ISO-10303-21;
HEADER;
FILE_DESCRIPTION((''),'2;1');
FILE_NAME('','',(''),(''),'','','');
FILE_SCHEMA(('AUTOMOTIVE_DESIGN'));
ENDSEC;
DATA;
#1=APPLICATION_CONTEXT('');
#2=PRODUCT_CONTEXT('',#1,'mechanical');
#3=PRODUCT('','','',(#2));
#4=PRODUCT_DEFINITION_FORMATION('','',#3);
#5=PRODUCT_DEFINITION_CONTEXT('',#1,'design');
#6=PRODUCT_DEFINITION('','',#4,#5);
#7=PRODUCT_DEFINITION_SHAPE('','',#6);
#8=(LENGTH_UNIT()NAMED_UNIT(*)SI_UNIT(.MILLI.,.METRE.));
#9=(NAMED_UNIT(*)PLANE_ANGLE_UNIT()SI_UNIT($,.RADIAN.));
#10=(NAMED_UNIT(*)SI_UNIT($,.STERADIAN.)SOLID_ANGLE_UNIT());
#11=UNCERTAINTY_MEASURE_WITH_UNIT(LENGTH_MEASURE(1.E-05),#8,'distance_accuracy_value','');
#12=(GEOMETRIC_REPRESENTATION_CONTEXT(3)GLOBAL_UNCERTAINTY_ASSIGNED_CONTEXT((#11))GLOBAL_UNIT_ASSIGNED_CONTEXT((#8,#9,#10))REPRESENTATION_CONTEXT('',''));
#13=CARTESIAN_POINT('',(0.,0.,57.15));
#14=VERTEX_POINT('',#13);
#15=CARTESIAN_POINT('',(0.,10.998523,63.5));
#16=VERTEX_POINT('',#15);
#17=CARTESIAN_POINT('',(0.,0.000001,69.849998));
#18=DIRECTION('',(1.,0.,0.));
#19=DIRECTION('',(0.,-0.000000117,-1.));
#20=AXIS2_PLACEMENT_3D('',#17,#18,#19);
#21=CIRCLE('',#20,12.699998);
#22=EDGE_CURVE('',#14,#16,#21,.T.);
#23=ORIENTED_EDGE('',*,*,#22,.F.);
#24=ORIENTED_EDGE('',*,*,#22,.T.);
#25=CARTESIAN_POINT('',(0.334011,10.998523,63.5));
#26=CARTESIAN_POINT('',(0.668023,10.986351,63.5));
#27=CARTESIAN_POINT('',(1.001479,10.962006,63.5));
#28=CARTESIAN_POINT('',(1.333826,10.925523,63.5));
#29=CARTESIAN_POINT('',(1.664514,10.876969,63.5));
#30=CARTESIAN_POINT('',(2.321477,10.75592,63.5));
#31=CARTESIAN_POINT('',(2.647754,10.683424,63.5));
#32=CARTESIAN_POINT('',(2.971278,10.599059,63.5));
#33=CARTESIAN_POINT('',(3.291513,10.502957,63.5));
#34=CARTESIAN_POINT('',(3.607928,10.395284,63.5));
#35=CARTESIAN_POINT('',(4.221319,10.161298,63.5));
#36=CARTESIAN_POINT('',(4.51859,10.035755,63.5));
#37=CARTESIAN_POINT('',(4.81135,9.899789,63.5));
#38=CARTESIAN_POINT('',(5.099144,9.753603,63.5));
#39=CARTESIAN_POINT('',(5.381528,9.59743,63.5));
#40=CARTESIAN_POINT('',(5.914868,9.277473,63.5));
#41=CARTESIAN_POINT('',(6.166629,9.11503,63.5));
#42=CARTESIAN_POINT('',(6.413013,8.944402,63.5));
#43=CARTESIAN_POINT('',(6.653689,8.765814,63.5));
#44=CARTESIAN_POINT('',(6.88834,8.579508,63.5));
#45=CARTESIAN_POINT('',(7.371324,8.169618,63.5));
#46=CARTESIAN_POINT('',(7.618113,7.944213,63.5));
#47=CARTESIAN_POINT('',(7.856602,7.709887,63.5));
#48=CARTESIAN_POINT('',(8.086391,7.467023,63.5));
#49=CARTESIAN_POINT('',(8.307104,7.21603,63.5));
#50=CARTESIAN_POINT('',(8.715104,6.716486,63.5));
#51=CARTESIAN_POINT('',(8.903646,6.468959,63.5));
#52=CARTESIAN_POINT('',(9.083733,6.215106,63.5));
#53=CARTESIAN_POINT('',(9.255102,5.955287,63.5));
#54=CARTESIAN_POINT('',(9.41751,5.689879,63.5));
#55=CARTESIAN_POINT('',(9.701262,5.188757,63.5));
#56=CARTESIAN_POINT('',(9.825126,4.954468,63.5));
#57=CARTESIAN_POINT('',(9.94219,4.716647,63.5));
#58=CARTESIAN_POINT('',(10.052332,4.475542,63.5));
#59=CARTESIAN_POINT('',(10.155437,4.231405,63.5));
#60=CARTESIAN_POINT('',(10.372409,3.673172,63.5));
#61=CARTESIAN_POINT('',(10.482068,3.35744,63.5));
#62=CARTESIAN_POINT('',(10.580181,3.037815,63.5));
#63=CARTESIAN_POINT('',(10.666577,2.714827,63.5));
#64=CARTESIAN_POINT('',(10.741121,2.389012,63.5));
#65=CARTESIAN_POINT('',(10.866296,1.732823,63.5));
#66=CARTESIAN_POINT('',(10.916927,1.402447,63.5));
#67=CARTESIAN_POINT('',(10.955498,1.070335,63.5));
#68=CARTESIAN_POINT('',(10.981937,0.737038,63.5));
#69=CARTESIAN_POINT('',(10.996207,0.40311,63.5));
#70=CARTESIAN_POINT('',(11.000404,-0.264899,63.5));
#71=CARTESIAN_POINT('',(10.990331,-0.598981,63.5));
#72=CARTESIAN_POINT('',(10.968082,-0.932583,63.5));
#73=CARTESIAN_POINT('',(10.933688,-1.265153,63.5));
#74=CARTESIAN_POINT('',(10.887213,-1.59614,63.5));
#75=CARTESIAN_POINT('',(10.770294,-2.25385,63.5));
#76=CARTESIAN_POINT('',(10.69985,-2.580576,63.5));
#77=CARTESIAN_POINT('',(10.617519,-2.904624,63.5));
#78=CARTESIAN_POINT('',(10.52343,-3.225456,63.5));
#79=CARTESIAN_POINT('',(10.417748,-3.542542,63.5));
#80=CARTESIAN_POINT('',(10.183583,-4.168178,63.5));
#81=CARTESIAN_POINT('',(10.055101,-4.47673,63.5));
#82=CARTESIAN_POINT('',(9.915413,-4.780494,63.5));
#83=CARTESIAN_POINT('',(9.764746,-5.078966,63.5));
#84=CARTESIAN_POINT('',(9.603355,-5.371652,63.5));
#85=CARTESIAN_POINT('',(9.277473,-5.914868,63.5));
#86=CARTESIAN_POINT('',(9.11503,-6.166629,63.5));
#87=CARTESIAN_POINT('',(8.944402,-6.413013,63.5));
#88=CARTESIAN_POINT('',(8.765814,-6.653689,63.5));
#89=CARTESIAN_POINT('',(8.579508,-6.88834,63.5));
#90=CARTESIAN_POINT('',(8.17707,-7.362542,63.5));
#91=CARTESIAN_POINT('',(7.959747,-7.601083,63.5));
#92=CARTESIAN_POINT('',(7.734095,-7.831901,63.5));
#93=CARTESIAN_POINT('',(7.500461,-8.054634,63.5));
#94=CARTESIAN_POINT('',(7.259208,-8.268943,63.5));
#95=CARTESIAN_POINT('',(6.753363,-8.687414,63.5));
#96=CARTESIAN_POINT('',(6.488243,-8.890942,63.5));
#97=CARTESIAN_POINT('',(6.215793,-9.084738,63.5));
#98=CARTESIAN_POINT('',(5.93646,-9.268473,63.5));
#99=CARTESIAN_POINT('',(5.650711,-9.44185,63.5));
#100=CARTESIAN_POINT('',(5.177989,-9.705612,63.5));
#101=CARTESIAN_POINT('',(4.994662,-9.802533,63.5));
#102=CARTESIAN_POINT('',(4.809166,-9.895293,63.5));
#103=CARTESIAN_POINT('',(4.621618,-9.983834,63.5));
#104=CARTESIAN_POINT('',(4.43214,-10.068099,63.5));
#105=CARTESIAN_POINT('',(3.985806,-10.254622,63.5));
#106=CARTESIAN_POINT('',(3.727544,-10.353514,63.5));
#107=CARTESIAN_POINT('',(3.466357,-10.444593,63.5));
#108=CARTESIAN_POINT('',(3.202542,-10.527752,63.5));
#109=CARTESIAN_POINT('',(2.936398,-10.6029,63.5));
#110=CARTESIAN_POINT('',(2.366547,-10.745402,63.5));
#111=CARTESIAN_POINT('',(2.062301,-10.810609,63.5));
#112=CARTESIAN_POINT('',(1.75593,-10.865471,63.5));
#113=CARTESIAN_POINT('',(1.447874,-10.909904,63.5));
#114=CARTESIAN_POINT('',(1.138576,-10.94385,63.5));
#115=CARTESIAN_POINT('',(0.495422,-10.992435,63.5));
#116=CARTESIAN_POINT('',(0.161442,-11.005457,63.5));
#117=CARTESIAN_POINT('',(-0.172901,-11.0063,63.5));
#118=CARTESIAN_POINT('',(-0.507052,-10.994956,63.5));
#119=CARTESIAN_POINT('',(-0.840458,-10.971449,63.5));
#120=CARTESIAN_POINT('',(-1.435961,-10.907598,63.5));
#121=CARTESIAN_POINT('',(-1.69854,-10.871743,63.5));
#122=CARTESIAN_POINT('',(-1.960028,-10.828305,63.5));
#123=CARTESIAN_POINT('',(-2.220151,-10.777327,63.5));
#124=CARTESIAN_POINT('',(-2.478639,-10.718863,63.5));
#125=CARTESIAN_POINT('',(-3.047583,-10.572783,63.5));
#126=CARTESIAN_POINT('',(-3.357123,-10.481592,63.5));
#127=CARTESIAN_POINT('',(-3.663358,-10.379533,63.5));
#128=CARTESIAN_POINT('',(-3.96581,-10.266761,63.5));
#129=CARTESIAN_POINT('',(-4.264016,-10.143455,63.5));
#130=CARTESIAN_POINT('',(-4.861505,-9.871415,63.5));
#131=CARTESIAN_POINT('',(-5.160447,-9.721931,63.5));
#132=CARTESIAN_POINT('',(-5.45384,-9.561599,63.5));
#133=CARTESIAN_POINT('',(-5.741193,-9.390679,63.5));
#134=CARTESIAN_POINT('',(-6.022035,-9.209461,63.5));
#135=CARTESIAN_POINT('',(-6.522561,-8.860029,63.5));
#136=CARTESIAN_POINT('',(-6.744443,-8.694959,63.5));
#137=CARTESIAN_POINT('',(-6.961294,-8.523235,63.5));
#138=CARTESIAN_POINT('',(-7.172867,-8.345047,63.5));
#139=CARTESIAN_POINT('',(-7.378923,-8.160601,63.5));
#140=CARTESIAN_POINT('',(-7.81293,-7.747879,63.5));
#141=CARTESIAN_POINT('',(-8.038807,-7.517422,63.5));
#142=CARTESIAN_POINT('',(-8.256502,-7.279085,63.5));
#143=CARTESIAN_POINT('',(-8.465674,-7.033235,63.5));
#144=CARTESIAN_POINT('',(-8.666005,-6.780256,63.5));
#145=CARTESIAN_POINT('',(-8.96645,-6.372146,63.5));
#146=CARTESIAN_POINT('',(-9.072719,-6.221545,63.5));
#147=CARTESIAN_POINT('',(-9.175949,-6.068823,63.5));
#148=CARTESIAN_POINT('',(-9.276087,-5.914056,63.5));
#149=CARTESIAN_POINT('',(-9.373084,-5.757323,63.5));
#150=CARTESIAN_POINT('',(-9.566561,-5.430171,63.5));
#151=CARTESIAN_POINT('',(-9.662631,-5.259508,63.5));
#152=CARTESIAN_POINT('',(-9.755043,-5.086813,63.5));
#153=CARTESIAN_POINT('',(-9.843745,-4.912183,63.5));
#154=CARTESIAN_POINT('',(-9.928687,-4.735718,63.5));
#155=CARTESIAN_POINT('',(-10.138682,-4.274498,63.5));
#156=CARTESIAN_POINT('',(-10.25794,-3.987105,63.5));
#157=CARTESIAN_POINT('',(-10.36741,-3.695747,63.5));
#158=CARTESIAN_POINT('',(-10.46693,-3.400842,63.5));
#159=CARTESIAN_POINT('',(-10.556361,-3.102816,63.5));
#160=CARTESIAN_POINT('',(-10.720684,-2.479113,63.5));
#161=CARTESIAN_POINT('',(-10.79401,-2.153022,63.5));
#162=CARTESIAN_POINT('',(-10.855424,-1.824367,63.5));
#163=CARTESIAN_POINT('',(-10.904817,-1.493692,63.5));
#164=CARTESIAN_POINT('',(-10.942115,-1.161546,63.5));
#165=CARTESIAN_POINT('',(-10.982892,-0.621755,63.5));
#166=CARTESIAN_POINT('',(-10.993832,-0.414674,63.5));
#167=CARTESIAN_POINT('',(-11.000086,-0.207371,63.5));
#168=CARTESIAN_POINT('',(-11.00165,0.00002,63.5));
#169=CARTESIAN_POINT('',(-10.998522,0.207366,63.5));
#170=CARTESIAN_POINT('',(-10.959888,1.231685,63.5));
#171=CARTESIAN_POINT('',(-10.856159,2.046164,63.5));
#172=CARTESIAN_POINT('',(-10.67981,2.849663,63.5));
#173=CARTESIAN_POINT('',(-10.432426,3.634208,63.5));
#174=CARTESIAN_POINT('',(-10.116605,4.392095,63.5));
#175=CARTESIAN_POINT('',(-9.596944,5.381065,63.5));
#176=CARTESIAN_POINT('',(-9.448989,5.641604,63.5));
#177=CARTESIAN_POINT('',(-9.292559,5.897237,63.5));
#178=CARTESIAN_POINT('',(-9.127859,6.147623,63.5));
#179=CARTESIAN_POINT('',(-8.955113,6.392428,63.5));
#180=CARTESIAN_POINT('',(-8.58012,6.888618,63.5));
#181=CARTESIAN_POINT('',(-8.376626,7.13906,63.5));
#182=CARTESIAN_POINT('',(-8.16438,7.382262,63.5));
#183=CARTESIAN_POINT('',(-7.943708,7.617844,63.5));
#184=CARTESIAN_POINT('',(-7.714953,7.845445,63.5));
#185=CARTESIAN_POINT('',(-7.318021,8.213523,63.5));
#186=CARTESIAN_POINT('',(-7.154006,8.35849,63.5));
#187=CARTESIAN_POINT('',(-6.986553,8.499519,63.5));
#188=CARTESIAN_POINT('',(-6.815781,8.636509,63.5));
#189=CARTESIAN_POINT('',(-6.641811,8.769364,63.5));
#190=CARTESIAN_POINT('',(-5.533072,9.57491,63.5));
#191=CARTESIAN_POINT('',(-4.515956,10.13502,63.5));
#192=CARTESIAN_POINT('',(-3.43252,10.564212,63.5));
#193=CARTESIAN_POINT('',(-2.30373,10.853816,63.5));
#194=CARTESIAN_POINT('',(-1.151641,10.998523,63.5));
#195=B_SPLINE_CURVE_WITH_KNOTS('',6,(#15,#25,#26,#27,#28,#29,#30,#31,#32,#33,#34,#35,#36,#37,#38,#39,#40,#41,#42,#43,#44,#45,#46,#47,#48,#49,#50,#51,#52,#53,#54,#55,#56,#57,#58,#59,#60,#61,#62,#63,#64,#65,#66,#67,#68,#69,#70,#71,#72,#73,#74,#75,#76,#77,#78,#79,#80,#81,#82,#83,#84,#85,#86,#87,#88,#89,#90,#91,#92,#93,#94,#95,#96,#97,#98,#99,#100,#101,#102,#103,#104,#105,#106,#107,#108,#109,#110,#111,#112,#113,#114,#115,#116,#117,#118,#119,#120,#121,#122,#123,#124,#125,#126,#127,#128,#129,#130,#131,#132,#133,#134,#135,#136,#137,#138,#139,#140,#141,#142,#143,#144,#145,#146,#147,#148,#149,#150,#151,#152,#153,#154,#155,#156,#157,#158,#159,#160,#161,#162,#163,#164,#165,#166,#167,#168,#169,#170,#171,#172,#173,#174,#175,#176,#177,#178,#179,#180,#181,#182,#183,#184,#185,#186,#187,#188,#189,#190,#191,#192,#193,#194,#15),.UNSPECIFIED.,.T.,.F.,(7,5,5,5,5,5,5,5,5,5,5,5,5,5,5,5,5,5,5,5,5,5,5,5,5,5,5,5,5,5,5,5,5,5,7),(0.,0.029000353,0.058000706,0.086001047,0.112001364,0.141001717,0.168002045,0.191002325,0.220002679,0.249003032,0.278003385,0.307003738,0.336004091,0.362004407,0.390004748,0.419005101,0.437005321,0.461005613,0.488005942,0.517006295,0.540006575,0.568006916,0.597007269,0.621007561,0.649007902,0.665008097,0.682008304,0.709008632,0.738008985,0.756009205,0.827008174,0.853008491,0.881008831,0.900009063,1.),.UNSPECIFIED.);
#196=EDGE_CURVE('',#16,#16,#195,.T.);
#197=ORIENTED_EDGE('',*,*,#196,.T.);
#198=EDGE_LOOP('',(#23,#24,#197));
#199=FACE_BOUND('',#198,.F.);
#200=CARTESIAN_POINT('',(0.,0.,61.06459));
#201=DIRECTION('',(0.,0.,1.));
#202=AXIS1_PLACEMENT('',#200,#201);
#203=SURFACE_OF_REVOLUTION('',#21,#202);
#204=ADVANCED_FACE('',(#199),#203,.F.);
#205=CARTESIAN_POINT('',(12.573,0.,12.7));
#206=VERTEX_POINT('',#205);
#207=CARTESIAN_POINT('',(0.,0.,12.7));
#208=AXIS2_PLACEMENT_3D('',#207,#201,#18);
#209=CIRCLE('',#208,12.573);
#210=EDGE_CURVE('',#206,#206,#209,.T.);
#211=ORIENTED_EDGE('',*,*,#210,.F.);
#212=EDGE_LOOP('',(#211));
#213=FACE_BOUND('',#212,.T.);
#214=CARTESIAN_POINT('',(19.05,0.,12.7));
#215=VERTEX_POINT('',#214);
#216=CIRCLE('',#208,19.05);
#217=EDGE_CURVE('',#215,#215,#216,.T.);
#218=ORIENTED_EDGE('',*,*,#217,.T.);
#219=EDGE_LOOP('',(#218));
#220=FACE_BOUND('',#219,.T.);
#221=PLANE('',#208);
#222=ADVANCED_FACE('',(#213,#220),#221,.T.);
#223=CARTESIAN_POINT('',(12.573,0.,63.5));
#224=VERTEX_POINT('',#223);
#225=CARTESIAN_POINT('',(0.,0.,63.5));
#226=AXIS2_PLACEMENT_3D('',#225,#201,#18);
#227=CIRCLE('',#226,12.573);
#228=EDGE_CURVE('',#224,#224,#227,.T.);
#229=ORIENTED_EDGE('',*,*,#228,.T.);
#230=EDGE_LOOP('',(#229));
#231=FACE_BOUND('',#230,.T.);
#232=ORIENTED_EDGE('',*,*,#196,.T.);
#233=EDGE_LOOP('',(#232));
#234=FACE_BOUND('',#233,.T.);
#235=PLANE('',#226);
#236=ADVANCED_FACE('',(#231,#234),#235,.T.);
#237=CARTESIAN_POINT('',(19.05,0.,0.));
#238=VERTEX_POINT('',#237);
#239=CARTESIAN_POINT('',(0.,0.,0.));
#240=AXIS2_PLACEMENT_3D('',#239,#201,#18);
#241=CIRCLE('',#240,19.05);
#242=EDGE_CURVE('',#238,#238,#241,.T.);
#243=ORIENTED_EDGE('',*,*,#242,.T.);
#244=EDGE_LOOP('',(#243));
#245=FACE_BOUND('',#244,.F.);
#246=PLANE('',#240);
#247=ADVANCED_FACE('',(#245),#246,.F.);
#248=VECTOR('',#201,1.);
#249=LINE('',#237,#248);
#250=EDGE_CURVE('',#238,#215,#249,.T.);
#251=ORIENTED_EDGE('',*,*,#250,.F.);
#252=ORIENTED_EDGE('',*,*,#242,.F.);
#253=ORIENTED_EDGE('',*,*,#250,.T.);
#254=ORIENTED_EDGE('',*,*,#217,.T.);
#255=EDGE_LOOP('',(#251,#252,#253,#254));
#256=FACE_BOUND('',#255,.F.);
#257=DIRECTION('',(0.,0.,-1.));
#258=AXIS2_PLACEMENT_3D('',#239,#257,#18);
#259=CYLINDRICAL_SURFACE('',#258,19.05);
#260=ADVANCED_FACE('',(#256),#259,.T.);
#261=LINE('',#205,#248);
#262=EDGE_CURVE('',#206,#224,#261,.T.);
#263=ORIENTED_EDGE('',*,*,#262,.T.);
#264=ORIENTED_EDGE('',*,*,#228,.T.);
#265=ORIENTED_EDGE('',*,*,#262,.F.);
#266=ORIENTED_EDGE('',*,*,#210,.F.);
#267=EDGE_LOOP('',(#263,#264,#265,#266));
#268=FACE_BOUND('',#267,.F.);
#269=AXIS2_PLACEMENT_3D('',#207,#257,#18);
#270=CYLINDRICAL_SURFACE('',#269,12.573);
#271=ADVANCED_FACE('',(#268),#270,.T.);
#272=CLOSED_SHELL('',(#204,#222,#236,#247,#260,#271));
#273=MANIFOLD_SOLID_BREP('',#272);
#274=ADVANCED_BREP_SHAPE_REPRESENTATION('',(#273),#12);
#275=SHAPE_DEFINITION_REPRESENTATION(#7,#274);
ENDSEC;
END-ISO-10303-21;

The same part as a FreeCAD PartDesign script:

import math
import FreeCAD as App
import Part
import Sketcher
Q = App.Units.Quantity

doc = App.newDocument("Part")
body = doc.addObject("PartDesign::Body", "Body")

# Sketch on XY plane
sketch1 = body.newObject("Sketcher::SketchObject", "Sketch")
sketch1.AttachmentSupport = (doc.getObject("XY_Plane"), [""])
sketch1.MapMode = "FlatFace"
sketch1.addGeometry(Part.Circle(App.Vector(0, 0, 0), App.Vector(0, 0, 1), 19.05), False)
sketch1.addConstraint([
    Sketcher.Constraint("Coincident", 0, 3, -1, 1),
    Sketcher.Constraint("Diameter", 0, Q("1.5 in")),
])
pad1 = body.newObject("PartDesign::Pad", "Pad")
pad1.Profile = sketch1
pad1.Length = Q("0.5 in")

# Sketch on XY plane
sketch2 = body.newObject("Sketcher::SketchObject", "Sketch001")
sketch2.AttachmentSupport = (doc.getObject("XY_Plane"), [""])
sketch2.MapMode = "FlatFace"
sketch2.AttachmentOffset = App.Placement(App.Vector(0, 0, 0.5 * 25.4), App.Rotation())
sketch2.addGeometry(Part.Circle(App.Vector(0, 0, 0), App.Vector(0, 0, 1), 12.573), False)
sketch2.addConstraint([
    Sketcher.Constraint("Coincident", 0, 3, -1, 1),
    Sketcher.Constraint("Diameter", 0, Q("0.99 in")),
])
pad2 = body.newObject("PartDesign::Pad", "Pad001")
pad2.Profile = sketch2
pad2.Length = Q("2 in")

# Sketch on YZ plane
sketch3 = body.newObject("Sketcher::SketchObject", "Sketch002")
sketch3.AttachmentSupport = (doc.getObject("YZ_Plane"), [""])
sketch3.MapMode = "FlatFace"
sketch3.addGeometry([
    Part.LineSegment(App.Vector(0, 64.979181, 0), App.Vector(0, 57.15, 0)),
    Part.ArcOfCircle(Part.Circle(App.Vector(0.000001, 69.849998, 0), App.Vector(0, 0, 1), 12.699998), math.radians(-90.000007), math.radians(-22.552446)),
    Part.LineSegment(App.Vector(11.728816, 64.979181, 0), App.Vector(0, 64.979181, 0)),
], False)
sketch3.addConstraint([
    Sketcher.Constraint("Coincident", 0, 2, 1, 1),
    Sketcher.Constraint("Coincident", 1, 2, 2, 1),
    Sketcher.Constraint("Coincident", 2, 2, 0, 1),
    Sketcher.Constraint("Vertical", 0),
    Sketcher.Constraint("Horizontal", 2),
    Sketcher.Constraint("PointOnObject", 1, 3, -2),
    Sketcher.Constraint("PointOnObject", 0, 2, -2),
    Sketcher.Constraint("Radius", 1, Q("0.4999999 in")),
    Sketcher.Constraint("DistanceY", -1, 1, 1, 3, Q("2.7499999 in")),
    Sketcher.Constraint("DistanceY", 0, 2, 0, 1, Q("7.829181 mm")),
])
groove = body.newObject("PartDesign::Groove", "Groove")
groove.Profile = sketch3
groove.ReferenceAxis = (sketch3, ["V_Axis"])
groove.Angle = 360

doc.recompute()
